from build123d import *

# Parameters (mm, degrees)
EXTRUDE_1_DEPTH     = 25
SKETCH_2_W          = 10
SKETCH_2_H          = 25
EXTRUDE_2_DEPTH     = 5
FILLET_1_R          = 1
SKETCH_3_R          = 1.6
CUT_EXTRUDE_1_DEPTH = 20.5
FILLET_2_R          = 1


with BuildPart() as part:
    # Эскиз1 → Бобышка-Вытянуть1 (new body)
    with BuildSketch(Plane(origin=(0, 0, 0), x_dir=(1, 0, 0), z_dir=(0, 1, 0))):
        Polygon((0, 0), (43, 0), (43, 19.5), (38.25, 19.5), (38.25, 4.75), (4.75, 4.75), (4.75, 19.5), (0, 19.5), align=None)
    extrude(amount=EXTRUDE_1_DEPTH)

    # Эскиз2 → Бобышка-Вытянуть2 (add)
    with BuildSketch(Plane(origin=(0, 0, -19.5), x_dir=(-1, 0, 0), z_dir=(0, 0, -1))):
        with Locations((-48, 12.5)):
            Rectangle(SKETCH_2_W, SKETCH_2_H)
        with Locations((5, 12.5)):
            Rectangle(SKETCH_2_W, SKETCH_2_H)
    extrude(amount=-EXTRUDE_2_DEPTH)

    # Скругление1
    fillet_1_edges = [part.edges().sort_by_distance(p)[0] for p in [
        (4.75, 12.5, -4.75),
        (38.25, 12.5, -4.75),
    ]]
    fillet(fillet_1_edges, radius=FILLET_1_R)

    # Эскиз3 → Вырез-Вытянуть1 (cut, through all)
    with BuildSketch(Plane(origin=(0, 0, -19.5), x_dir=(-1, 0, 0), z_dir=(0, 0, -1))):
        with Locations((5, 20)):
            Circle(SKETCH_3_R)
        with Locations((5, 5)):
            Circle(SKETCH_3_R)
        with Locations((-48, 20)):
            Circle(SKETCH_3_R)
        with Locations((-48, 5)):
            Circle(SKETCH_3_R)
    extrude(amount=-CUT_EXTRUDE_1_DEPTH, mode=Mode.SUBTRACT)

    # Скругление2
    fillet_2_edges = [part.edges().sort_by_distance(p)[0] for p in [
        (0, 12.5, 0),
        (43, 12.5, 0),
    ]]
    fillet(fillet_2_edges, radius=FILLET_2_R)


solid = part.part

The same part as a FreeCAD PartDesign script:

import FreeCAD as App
import Part
import Sketcher

V = App.Vector
Q = App.Units.Quantity


def edges_at(feature, points):
    """Names of the edges that pass closest to the given points."""
    edges = feature.Shape.Edges
    near = lambda p: min(range(len(edges)), key=lambda i: edges[i].distToShape(Part.Vertex(*p))[0])
    return sorted({f"Edge{near(p) + 1}" for p in points})


def add_polygon(sketch, points):
    """Adds a closed chain of lines whose ends are joined by coincident constraints."""
    first, n = sketch.GeometryCount, len(points)
    for a, b in zip(points, points[1:] + points[:1]):
        sketch.addGeometry(Part.LineSegment(App.Vector(*a, 0), App.Vector(*b, 0)), False)
    for i in range(n):
        sketch.addConstraint(Sketcher.Constraint("Coincident", first + i, 2, first + (i + 1) % n, 1))

doc = App.newDocument("Part")
body = doc.addObject("PartDesign::Body", "Body")

# Sketch on XZ plane
sketch1 = body.newObject("Sketcher::SketchObject", "Sketch")
sketch1.AttachmentSupport = (doc.getObject("XZ_Plane"), [""])
sketch1.MapMode = "FlatFace"
add_polygon(sketch1, [(0, 0), (43, 0), (43, -19.5), (38.25, -19.5), (38.25, -4.75), (4.75, -4.75), (4.75, -19.5), (0, -19.5)])  # lines 0-7
sketch1.addConstraint([
    Sketcher.Constraint("Horizontal", 0),
    Sketcher.Constraint("Vertical", 1),
    Sketcher.Constraint("Horizontal", 2),
    Sketcher.Constraint("Vertical", 3),
    Sketcher.Constraint("Horizontal", 4),
    Sketcher.Constraint("Vertical", 5),
    Sketcher.Constraint("Horizontal", 6),
    Sketcher.Constraint("Vertical", 7),
    Sketcher.Constraint("Coincident", 7, 2, -1, 1),
    Sketcher.Constraint("Horizontal", 2, 2, 5, 2),
    Sketcher.Constraint("Equal", 2, 6),
    Sketcher.Constraint("DistanceX", 0, 1, 0, 2, Q("43 mm")),
    Sketcher.Constraint("DistanceX", 4, 2, 4, 1, Q("33.5 mm")),
    Sketcher.Constraint("DistanceY", 1, 2, 1, 1, Q("19.5 mm")),
    Sketcher.Constraint("DistanceY", 3, 1, 3, 2, Q("14.75 mm")),
])
pad1 = body.newObject("PartDesign::Pad", "Pad")
pad1.Profile = sketch1
pad1.Length = 25
pad1.Reversed = True

# Sketch on XY plane
sketch2 = body.newObject("Sketcher::SketchObject", "Sketch001")
sketch2.AttachmentSupport = (doc.getObject("XY_Plane"), [""])
sketch2.MapMode = "FlatFace"
sketch2.AttachmentOffset = App.Placement(V(0, 0, -19.5), App.Rotation())
add_polygon(sketch2, [(53, 25), (53, 0), (43, 0), (43, 25)])  # lines 0-3
add_polygon(sketch2, [(0, 25), (0, 0), (-10, 0), (-10, 25)])  # lines 4-7
sketch2.addConstraint([
    Sketcher.Constraint("Vertical", 0),
    Sketcher.Constraint("Horizontal", 1),
    Sketcher.Constraint("Vertical", 2),
    Sketcher.Constraint("Horizontal", 3),
    Sketcher.Constraint("Vertical", 4),
    Sketcher.Constraint("Horizontal", 5),
    Sketcher.Constraint("Vertical", 6),
    Sketcher.Constraint("Horizontal", 7),
    Sketcher.Constraint("Coincident", 4, 2, -1, 1),
    Sketcher.Constraint("PointOnObject", 0, 2, -1),
    Sketcher.Constraint("Horizontal", 3, 2, 6, 2),
    Sketcher.Constraint("Equal", 3, 5),
    Sketcher.Constraint("DistanceX", 1, 2, 1, 1, Q("10 mm")),
    Sketcher.Constraint("DistanceY", 0, 2, 0, 1, Q("25 mm")),
    Sketcher.Constraint("DistanceX", -1, 1, 0, 2, Q("53 mm")),
])
pad2 = body.newObject("PartDesign::Pad", "Pad001")
pad2.Profile = sketch2
pad2.Length = 5
doc.recompute()

fillet = body.newObject("PartDesign::Fillet", "Fillet")
fillet.Base = (pad2, edges_at(pad2, [(4.75, 12.5, -4.75), (38.25, 12.5, -4.75)]))
fillet.Radius = 1

# Sketch on XY plane
sketch3 = body.newObject("Sketcher::SketchObject", "Sketch002")
sketch3.AttachmentSupport = (doc.getObject("XY_Plane"), [""])
sketch3.MapMode = "FlatFace"
sketch3.AttachmentOffset = App.Placement(V(0, 0, -19.5), App.Rotation())
sketch3.addGeometry([
    Part.Circle(V(-5, 20, 0), V(0, 0, 1), 1.6),
    Part.Circle(V(-5, 5, 0), V(0, 0, 1), 1.6),
    Part.Circle(V(48, 20, 0), V(0, 0, 1), 1.6),
    Part.Circle(V(48, 5, 0), V(0, 0, 1), 1.6),
], False)
sketch3.addConstraint([
    Sketcher.Constraint("Equal", 0, 1),
    Sketcher.Constraint("Equal", 1, 2),
    Sketcher.Constraint("Equal", 2, 3),
    Sketcher.Constraint("Horizontal", 0, 3, 2, 3),
    Sketcher.Constraint("Horizontal", 1, 3, 3, 3),
    Sketcher.Constraint("Vertical", 0, 3, 1, 3),
    Sketcher.Constraint("Vertical", 2, 3, 3, 3),
    Sketcher.Constraint("Diameter", 0, Q("3.2 mm")),
    Sketcher.Constraint("DistanceX", 0, 3, -1, 1, Q("5 mm")),
    Sketcher.Constraint("DistanceY", -1, 1, 0, 3, Q("20 mm")),
    Sketcher.Constraint("DistanceY", -1, 1, 1, 3, Q("5 mm")),
    Sketcher.Constraint("DistanceX", -1, 1, 2, 3, Q("48 mm")),
])
pocket1 = body.newObject("PartDesign::Pocket", "Pocket")
pocket1.Profile = sketch3
pocket1.Type = "ThroughAll"
pocket1.Reversed = True
doc.recompute()

fillet2 = body.newObject("PartDesign::Fillet", "Fillet001")
fillet2.Base = (pocket1, edges_at(pocket1, [(0, 12.5, 0), (43, 12.5, 0)]))
fillet2.Radius = 1

doc.recompute()
